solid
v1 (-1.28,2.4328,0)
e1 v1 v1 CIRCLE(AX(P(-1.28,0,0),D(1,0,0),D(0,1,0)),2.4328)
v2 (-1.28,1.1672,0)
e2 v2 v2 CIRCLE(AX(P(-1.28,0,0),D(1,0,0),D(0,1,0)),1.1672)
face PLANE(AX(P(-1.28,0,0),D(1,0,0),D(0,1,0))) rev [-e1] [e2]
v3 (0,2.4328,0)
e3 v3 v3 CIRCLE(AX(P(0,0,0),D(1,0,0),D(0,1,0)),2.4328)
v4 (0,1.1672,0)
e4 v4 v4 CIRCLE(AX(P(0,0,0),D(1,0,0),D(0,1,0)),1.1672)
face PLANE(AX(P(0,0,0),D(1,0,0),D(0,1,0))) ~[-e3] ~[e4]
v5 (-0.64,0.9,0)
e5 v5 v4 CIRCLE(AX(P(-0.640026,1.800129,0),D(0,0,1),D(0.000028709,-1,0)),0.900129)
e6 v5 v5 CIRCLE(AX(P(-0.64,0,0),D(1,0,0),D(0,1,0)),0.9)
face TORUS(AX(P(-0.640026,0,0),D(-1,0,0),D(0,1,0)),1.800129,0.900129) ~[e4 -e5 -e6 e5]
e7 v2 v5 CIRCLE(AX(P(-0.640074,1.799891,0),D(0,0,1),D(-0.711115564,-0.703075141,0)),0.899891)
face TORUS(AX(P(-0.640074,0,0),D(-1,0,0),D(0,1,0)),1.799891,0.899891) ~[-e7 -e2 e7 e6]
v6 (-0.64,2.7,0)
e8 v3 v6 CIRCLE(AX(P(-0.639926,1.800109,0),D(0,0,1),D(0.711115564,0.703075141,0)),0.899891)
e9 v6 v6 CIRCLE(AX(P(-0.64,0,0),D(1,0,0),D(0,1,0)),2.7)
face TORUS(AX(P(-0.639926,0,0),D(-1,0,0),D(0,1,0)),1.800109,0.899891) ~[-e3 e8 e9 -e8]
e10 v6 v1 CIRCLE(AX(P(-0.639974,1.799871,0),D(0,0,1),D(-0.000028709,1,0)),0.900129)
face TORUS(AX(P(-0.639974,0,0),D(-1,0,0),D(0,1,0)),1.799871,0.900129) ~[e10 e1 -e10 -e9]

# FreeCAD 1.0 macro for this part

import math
import FreeCAD as App
import Part
import Sketcher
from FreeCAD import Vector

doc = App.newDocument("Part")
body = doc.addObject("PartDesign::Body", "Body")

sketch1 = body.newObject("Sketcher::SketchObject", "Sketch")
sketch1.AttachmentSupport = (doc.getObject("XY_Plane"), [""])
sketch1.MapMode = "FlatFace"
sketch1.addGeometry([
    Part.LineSegment(Vector(0, 1.2, 0), Vector(0, 2.4, 0)),
    Part.ArcOfCircle(Part.Circle(Vector(-0.6, 1.8, 0), Vector(0, 0, 1), 0.9), math.radians(45), math.radians(90)),
    Part.ArcOfCircle(Part.Circle(Vector(-0.6, 1.8, 0), Vector(0, 0, 1), 0.9), math.radians(90), math.radians(135)),
    Part.LineSegment(Vector(-1.3, 2.4, 0), Vector(-1.3, 1.2, 0)),
    Part.ArcOfCircle(Part.Circle(Vector(-0.6, 1.8, 0), Vector(0, 0, 1), 0.9), math.radians(-135), math.radians(-90)),
    Part.ArcOfCircle(Part.Circle(Vector(-0.6, 1.8, 0), Vector(0, 0, 1), 0.9), math.radians(-90), math.radians(-45)),
], False)
sketch1.addConstraint([
    Sketcher.Constraint("Coincident", 0, 2, 1, 1),
    Sketcher.Constraint("Tangent", 1, 2, 2, 1),
    Sketcher.Constraint("Coincident", 2, 2, 3, 1),
    Sketcher.Constraint("Coincident", 3, 2, 4, 1),
    Sketcher.Constraint("Tangent", 4, 2, 5, 1),
    Sketcher.Constraint("Coincident", 5, 2, 0, 1),
    Sketcher.Constraint("Vertical", 0),
    Sketcher.Constraint("Vertical", 3),
    Sketcher.Constraint("Coincident", 4, 3, 1, 3),
    Sketcher.Constraint("Equal", 1, 2),
    Sketcher.Constraint("Equal", 2, 4),
    Sketcher.Constraint("Equal", 4, 5),
    Sketcher.Constraint("PointOnObject", 0, 2, -2),
    Sketcher.Constraint("Horizontal", 0, 2, 2, 2),
    Sketcher.Constraint("Vertical", 5, 3, 1, 2),
    Sketcher.Constraint("Vertical", 1, 2, 4, 2),
    Sketcher.Constraint("Radius", 1, 0.9),
    Sketcher.Constraint("DistanceY", -1, 1, 1, 3, 1.8),
    Sketcher.Constraint("DistanceX", 1, 3, -1, 1, 0.64),
])
revolution = body.newObject("PartDesign::Revolution", "Revolution")
revolution.Profile = sketch1
revolution.ReferenceAxis = (sketch1, ["H_Axis"])
revolution.Angle = 360

doc.recompute()
